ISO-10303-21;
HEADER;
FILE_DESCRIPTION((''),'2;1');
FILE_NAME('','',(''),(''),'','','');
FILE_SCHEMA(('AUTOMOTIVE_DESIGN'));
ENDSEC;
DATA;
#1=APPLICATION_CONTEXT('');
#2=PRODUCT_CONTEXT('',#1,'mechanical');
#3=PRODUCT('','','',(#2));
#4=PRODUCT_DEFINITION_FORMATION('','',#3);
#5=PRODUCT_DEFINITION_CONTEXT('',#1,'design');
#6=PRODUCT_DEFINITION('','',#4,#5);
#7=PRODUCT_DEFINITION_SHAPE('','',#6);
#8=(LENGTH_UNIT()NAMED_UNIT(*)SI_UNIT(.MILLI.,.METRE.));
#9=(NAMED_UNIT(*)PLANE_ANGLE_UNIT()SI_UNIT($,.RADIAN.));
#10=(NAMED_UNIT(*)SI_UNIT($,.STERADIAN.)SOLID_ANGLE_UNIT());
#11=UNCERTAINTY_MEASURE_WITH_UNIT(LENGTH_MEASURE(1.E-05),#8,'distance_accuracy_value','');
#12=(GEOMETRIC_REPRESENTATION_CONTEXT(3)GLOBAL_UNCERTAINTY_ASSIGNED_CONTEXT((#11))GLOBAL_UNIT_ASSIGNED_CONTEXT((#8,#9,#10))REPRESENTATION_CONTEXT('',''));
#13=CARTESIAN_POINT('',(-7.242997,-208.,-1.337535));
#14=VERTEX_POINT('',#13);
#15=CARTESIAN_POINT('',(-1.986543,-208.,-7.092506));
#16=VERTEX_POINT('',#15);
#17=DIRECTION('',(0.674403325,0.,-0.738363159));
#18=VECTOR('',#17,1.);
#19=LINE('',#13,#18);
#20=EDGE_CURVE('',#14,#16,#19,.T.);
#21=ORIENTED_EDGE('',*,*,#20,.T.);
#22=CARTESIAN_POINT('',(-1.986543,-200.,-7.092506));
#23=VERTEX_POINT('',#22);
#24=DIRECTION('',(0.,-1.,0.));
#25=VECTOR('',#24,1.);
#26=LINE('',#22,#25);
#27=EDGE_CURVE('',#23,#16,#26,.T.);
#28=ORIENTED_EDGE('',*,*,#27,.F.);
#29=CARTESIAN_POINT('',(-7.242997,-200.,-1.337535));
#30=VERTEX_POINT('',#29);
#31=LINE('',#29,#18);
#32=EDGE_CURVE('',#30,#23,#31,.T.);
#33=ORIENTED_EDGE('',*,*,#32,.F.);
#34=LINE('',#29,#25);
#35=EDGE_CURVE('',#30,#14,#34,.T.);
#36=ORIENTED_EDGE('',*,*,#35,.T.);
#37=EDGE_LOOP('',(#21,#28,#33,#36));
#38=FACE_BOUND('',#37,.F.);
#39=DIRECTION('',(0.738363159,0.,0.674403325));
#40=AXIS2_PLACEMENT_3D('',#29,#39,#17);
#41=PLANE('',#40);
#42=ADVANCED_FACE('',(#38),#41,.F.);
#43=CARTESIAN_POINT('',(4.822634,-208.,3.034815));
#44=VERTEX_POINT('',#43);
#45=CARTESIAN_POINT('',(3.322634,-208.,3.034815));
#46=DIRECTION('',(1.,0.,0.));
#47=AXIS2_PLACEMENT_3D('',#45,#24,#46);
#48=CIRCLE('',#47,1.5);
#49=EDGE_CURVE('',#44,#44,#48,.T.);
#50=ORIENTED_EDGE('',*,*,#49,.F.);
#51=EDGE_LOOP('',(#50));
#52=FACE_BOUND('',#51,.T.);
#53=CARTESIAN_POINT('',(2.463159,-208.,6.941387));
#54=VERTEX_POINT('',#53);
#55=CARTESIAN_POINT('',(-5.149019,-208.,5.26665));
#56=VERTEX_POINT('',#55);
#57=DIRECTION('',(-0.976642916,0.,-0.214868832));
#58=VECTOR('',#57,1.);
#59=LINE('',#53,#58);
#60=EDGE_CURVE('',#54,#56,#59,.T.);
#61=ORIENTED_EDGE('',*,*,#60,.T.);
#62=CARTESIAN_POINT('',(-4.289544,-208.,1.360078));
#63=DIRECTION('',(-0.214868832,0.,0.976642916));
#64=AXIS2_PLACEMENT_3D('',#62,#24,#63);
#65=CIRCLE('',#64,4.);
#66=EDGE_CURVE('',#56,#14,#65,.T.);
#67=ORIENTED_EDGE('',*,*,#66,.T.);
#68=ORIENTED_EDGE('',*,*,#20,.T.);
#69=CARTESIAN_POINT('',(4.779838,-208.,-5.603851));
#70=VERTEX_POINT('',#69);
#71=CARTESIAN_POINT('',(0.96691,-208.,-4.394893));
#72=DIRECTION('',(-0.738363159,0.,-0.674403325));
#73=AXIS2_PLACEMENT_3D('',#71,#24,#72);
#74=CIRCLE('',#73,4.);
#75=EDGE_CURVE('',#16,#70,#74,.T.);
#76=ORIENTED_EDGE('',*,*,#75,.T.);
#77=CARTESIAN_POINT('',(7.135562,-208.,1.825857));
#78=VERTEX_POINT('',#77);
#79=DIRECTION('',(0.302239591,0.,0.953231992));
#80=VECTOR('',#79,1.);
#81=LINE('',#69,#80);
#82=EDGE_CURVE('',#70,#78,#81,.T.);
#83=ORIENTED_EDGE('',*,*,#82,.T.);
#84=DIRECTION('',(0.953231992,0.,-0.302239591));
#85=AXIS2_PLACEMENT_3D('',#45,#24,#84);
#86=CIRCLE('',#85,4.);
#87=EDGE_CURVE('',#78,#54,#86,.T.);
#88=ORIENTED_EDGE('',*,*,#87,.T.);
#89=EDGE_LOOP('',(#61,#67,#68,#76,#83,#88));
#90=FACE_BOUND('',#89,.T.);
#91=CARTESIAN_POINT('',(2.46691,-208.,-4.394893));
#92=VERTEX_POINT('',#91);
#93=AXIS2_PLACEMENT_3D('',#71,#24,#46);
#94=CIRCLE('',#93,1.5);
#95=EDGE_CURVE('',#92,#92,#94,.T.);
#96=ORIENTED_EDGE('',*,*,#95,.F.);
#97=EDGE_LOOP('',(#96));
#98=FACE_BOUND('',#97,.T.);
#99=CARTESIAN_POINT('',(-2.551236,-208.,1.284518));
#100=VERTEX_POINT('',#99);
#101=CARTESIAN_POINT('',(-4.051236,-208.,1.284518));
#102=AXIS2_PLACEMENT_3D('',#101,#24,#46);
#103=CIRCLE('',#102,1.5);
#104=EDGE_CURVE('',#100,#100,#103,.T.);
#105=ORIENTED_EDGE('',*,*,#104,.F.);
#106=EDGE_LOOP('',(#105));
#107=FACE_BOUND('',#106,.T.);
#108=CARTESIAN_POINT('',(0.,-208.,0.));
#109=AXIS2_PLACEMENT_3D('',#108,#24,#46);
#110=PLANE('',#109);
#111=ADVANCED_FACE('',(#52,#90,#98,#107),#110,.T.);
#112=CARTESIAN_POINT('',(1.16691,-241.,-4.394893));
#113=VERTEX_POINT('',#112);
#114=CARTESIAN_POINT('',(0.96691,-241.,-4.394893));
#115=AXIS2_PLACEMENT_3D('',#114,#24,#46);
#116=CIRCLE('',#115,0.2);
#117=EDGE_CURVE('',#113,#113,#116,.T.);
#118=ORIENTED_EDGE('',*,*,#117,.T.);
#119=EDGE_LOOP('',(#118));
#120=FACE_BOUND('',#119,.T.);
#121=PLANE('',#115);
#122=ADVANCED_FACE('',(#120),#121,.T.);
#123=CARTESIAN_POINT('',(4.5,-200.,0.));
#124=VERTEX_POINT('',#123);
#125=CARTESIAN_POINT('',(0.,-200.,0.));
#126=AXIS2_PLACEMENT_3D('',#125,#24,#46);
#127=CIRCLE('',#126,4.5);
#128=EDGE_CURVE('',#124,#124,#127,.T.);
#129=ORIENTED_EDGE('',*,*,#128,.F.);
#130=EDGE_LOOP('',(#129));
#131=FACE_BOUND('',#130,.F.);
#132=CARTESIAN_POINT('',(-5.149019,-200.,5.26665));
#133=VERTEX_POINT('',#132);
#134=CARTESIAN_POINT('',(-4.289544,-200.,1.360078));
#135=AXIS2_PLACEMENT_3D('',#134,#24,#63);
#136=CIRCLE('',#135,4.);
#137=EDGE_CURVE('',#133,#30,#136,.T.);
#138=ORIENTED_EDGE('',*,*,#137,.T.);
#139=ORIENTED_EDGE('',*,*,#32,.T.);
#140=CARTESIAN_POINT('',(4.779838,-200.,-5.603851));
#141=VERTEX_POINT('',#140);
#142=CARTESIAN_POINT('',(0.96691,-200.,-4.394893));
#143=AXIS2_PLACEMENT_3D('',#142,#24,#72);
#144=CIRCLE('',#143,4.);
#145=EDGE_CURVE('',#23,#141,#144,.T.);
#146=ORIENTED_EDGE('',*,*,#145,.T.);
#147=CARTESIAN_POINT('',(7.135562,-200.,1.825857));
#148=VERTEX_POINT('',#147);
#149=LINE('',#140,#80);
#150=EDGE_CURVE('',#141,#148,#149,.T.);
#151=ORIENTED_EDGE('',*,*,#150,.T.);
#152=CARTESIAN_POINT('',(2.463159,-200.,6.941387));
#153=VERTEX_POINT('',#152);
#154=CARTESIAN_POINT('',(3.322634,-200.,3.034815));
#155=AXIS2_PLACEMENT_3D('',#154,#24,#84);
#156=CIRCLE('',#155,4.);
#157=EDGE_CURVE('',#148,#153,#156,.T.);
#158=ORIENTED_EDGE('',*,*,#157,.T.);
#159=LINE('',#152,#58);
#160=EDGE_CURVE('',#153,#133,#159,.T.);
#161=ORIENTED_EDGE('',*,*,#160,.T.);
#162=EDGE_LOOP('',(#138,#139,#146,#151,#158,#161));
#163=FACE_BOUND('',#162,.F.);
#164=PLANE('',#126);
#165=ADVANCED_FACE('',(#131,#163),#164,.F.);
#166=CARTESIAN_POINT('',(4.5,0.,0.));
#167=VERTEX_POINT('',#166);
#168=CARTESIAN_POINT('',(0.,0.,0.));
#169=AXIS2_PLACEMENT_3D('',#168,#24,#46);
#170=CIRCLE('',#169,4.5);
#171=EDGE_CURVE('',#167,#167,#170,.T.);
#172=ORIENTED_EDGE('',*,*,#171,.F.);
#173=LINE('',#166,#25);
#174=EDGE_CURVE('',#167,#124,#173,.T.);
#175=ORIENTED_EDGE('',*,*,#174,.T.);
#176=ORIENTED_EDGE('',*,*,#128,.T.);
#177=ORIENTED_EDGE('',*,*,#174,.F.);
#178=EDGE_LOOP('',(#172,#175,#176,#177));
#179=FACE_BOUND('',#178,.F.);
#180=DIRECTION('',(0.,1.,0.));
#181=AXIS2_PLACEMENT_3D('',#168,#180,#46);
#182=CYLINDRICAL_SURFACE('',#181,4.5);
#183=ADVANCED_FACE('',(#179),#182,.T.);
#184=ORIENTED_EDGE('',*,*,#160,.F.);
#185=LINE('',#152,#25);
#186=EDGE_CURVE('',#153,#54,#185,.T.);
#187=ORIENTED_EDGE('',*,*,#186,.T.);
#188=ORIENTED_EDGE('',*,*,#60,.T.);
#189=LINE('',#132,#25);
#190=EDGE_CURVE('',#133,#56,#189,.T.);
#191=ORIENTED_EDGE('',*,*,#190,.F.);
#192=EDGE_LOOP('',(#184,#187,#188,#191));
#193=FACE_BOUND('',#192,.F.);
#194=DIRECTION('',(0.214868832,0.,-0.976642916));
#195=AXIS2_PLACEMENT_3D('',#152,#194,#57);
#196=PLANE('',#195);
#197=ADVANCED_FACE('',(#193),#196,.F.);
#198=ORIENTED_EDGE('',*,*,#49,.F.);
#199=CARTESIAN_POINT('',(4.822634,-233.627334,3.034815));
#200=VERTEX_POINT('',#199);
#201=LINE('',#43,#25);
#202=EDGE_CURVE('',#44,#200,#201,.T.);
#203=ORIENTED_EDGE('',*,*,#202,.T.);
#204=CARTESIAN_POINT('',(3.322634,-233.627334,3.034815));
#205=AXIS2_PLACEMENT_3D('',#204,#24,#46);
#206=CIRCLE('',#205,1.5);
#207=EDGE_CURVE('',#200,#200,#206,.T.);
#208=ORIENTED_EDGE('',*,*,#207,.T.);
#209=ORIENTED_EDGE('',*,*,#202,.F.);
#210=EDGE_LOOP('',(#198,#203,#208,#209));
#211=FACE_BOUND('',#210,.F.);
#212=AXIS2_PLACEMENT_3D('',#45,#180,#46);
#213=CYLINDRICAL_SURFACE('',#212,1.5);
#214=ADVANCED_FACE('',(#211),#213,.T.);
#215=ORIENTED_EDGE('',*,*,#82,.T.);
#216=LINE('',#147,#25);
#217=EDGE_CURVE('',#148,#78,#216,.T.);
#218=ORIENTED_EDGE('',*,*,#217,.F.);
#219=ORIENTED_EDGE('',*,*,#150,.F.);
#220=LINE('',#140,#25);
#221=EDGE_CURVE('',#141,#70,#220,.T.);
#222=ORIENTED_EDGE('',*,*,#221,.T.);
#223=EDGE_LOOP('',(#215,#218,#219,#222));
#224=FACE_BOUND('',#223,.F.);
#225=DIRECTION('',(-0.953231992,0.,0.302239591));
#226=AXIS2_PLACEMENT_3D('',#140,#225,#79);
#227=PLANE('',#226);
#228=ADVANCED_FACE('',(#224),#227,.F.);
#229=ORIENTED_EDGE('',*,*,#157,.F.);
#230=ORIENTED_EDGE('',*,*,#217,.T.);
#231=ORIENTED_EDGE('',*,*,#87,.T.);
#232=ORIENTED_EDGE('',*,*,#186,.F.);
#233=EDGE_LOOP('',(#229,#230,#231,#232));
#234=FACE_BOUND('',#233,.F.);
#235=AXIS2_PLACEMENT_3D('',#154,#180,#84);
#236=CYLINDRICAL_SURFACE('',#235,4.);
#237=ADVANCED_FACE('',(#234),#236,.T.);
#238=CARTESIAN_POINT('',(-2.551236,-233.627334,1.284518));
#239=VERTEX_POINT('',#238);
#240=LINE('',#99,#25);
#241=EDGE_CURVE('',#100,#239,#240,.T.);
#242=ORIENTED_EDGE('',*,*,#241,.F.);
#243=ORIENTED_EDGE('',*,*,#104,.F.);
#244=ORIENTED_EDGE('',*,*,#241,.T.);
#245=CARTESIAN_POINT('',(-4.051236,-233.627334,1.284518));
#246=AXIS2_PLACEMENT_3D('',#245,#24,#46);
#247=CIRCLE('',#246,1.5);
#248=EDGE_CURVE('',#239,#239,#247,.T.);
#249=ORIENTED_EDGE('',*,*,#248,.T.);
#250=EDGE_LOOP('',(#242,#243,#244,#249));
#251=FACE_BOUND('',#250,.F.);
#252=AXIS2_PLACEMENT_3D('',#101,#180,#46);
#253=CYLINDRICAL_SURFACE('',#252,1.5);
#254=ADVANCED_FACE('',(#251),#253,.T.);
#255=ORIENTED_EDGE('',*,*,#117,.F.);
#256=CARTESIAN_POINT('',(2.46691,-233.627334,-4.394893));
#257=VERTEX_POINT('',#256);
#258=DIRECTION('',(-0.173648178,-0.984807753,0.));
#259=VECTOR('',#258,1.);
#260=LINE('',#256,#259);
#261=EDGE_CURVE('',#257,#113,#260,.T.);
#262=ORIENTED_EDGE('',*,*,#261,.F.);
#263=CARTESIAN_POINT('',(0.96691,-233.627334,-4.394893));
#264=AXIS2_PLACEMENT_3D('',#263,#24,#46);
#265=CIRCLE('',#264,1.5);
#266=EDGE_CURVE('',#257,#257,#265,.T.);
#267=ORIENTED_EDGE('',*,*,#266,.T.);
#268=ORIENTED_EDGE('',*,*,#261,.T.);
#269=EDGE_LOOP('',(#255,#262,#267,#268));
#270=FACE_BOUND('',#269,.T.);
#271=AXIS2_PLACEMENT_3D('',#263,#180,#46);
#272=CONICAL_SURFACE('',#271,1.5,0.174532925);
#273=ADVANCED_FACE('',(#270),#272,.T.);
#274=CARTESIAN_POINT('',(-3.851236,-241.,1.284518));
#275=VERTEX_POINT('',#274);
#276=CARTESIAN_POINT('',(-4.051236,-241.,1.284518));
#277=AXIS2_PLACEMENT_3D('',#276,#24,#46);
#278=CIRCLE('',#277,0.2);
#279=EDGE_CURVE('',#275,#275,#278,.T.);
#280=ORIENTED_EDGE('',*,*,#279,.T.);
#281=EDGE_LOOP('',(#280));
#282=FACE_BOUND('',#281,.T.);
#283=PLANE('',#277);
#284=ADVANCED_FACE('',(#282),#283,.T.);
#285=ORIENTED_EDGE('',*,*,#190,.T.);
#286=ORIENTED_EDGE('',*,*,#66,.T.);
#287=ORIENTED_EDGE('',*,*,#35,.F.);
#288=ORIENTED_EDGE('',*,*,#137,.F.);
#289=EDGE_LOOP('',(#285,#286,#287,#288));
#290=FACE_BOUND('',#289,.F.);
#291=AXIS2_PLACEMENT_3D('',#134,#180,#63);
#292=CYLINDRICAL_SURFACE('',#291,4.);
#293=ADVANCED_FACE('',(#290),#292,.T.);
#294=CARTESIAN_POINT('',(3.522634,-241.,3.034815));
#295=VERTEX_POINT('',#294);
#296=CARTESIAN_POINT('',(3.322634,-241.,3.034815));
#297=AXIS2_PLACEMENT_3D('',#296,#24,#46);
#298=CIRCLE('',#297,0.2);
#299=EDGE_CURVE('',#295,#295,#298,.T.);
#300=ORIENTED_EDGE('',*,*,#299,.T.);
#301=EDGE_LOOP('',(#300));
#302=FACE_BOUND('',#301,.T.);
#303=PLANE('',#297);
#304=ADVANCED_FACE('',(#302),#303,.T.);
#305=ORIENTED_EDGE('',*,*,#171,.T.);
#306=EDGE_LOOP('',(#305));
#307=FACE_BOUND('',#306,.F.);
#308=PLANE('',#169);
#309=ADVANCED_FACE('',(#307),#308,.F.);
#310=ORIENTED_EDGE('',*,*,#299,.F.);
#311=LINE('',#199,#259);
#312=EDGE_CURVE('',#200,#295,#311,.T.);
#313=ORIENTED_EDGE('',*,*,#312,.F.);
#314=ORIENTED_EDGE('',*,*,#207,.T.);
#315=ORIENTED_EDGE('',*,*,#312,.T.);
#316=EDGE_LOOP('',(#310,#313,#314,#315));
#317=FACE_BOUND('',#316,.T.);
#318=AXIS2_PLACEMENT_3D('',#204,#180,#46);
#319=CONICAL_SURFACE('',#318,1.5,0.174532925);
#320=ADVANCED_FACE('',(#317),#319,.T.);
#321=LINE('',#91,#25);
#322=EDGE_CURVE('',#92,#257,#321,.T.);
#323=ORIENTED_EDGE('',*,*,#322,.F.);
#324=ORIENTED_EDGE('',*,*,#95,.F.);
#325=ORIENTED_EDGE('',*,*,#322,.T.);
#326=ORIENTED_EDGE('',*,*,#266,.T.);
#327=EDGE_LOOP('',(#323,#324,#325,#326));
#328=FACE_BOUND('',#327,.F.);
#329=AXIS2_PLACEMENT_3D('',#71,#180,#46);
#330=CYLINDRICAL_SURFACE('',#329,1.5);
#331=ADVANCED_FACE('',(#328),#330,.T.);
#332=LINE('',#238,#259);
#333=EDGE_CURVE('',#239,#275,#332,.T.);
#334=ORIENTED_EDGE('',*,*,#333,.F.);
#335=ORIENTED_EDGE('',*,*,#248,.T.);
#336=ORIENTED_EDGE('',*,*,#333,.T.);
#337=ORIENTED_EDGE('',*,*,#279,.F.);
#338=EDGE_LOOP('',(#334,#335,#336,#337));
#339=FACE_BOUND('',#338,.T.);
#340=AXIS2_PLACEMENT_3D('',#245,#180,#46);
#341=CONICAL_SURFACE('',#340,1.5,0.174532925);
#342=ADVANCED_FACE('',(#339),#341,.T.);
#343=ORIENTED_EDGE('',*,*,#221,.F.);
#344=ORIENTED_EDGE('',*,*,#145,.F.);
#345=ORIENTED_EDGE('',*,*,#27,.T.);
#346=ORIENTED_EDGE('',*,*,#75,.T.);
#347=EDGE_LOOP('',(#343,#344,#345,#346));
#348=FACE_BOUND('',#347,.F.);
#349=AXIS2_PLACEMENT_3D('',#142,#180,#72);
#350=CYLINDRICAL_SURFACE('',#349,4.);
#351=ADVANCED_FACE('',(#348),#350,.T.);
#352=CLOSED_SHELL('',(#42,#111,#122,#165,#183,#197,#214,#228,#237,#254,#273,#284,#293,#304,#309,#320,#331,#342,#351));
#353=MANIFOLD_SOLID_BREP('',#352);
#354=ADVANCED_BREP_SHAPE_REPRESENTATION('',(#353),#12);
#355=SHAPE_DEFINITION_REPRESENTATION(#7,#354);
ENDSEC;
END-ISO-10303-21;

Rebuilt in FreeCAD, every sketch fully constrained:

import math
import FreeCAD as App
import Part
import Sketcher
from FreeCAD import Vector
Q = App.Units.Quantity


def edges_at(feature, points):
    """Names of the edges that pass closest to the given points."""
    edges = feature.Shape.Edges
    near = lambda p: min(range(len(edges)), key=lambda i: edges[i].distToShape(Part.Vertex(*p))[0])
    return sorted({f"Edge{near(p) + 1}" for p in points})

doc = App.newDocument("Part")
params = doc.addObject("Spreadsheet::Sheet", "Params")
for row, (alias, value) in enumerate([
    ("sketch1_diameter", "9 mm"),
    ("pad1_length", "200 mm"),
    ("sketch2_radius", "4 mm"),
    ("pad2_length", "8 mm"),
    ("sketch3_diameter", "3 mm"),
    ("pad3_length", "33 mm"),
    ("chamfer_size", "7.372666 mm"),
    ("chamfer_size2", "1.3 mm"),
    ("chamfer2_size", "7.372666 mm"),
    ("chamfer2_size2", "1.3 mm"),
    ("chamfer3_size", "7.372666 mm"),
    ("chamfer3_size2", "1.3 mm"),
], start=1):
    params.set(f"A{row}", alias)
    params.set(f"B{row}", "=" + value)
    params.setAlias(f"B{row}", alias)

body = doc.addObject("PartDesign::Body", "Body")

# Sketch on XZ plane
sketch1 = body.newObject("Sketcher::SketchObject", "Sketch")
sketch1.AttachmentSupport = (doc.getObject("XZ_Plane"), [""])
sketch1.MapMode = "FlatFace"
sketch1.addGeometry(Part.Circle(Vector(0, 0, 0), Vector(0, 0, 1), 4.5), False)
sketch1.addConstraint(Sketcher.Constraint("Coincident", 0, 3, -1, 1))
sketch1.addConstraint(Sketcher.Constraint("Diameter", 0, Q("9 mm")))
sketch1.setExpression("Constraints[1]", "Params.sketch1_diameter")
pad1 = body.newObject("PartDesign::Pad", "Pad")
pad1.Profile = sketch1
pad1.setExpression("Length", "Params.pad1_length")

# Sketch on XZ plane
sketch2 = body.newObject("Sketcher::SketchObject", "Sketch001")
sketch2.AttachmentSupport = (doc.getObject("XZ_Plane"), [""])
sketch2.MapMode = "FlatFace"
sketch2.AttachmentOffset = App.Placement(Vector(0, 0, 200), App.Rotation())
sketch2.addGeometry(Part.LineSegment(Vector(2.5, 6.9, 0), Vector(-5.1, 5.3, 0)), False)
sketch2.addGeometry(Part.ArcOfCircle(Part.Circle(Vector(-4.3, 1.4, 0), Vector(0, 0, 1), 4), math.radians(102), math.radians(222)), False)
sketch2.addGeometry(Part.LineSegment(Vector(-7.2, -1.3, 0), Vector(-2, -7.1, 0)), False)
sketch2.addGeometry(Part.ArcOfCircle(Part.Circle(Vector(1, -4.4, 0), Vector(0, 0, 1), 4), math.radians(-138), math.radians(-18)), False)
sketch2.addGeometry(Part.LineSegment(Vector(4.8, -5.6, 0), Vector(7.1, 1.8, 0)), False)
sketch2.addGeometry(Part.ArcOfCircle(Part.Circle(Vector(3.3, 3, 0), Vector(0, 0, 1), 4), math.radians(-18), math.radians(102)), False)
sketch2.addConstraint(Sketcher.Constraint("Tangent", 0, 2, 1, 1))
sketch2.addConstraint(Sketcher.Constraint("Tangent", 1, 2, 2, 1))
sketch2.addConstraint(Sketcher.Constraint("Tangent", 2, 2, 3, 1))
sketch2.addConstraint(Sketcher.Constraint("Tangent", 3, 2, 4, 1))
sketch2.addConstraint(Sketcher.Constraint("Tangent", 4, 2, 5, 1))
sketch2.addConstraint(Sketcher.Constraint("Tangent", 5, 2, 0, 1))
sketch2.addConstraint(Sketcher.Constraint("Equal", 1, 3))
sketch2.addConstraint(Sketcher.Constraint("Equal", 3, 5))
sketch2.addConstraint(Sketcher.Constraint("Equal", 0, 2))
sketch2.addConstraint(Sketcher.Constraint("Equal", 2, 4))
sketch2.addConstraint(Sketcher.Constraint("Radius", 1, Q("4 mm")))
sketch2.addConstraint(Sketcher.Constraint("DistanceX", 1, 3, 2, 2, Q("2.303001 mm")))
sketch2.addConstraint(Sketcher.Constraint("Distance", 0, Q("7.794229 mm")))
sketch2.addConstraint(Sketcher.Constraint("DistanceY", -1, 1, 1, 3, Q("1.360078 mm")))
sketch2.addConstraint(Sketcher.Constraint("DistanceX", -1, 1, 3, 3, Q("0.96691 mm")))
sketch2.setExpression("Constraints[10]", "Params.sketch2_radius")
pad2 = body.newObject("PartDesign::Pad", "Pad001")
pad2.Profile = sketch2
pad2.setExpression("Length", "Params.pad2_length")

# Sketch on XZ plane
sketch3 = body.newObject("Sketcher::SketchObject", "Sketch002")
sketch3.AttachmentSupport = (doc.getObject("XZ_Plane"), [""])
sketch3.MapMode = "FlatFace"
sketch3.AttachmentOffset = App.Placement(Vector(0, 0, 208), App.Rotation())
sketch3.addGeometry(Part.Circle(Vector(3.3, 3, 0), Vector(0, 0, 1), 1.5), False)
sketch3.addGeometry(Part.Circle(Vector(-4.1, 1.3, 0), Vector(0, 0, 1), 1.5), False)
sketch3.addGeometry(Part.Circle(Vector(1, -4.4, 0), Vector(0, 0, 1), 1.5), False)
sketch3.addConstraint(Sketcher.Constraint("Equal", 0, 1))
sketch3.addConstraint(Sketcher.Constraint("Equal", 1, 2))
sketch3.addConstraint(Sketcher.Constraint("Diameter", 0, Q("3 mm")))
sketch3.addConstraint(Sketcher.Constraint("DistanceY", -1, 1, 1, 3, Q("1.284518 mm")))
sketch3.addConstraint(Sketcher.Constraint("DistanceX", -1, 1, 2, 3, Q("0.96691 mm")))
sketch3.addConstraint(Sketcher.Constraint("DistanceX", 1, 3, 0, 3, Q("7.37387 mm")))
sketch3.addConstraint(Sketcher.Constraint("DistanceY", 2, 3, 1, 3, Q("5.679411 mm")))
sketch3.addConstraint(Sketcher.Constraint("DistanceY", 2, 3, 0, 3, Q("7.429708 mm")))
sketch3.addConstraint(Sketcher.Constraint("DistanceX", -1, 1, 0, 3, Q("3.322634 mm")))
sketch3.setExpression("Constraints[2]", "Params.sketch3_diameter")
pad3 = body.newObject("PartDesign::Pad", "Pad002")
pad3.Profile = sketch3
pad3.setExpression("Length", "Params.pad3_length")
doc.recompute()

chamfer = body.newObject("PartDesign::Chamfer", "Chamfer")
chamfer.Base = (pad3, edges_at(pad3, [(-0.533, -241, -4.395)]))
chamfer.ChamferType = "Two distances"
chamfer.setExpression("Size", "Params.chamfer_size")
chamfer.setExpression("Size2", "Params.chamfer_size2")
doc.recompute()

chamfer2 = body.newObject("PartDesign::Chamfer", "Chamfer001")
chamfer2.Base = (chamfer, edges_at(chamfer, [(-5.551, -241, 1.285)]))
chamfer2.ChamferType = "Two distances"
chamfer2.setExpression("Size", "Params.chamfer2_size")
chamfer2.setExpression("Size2", "Params.chamfer2_size2")
doc.recompute()

chamfer3 = body.newObject("PartDesign::Chamfer", "Chamfer002")
chamfer3.Base = (chamfer2, edges_at(chamfer2, [(1.823, -241, 3.035)]))
chamfer3.ChamferType = "Two distances"
chamfer3.setExpression("Size", "Params.chamfer3_size")
chamfer3.setExpression("Size2", "Params.chamfer3_size2")

doc.recompute()
